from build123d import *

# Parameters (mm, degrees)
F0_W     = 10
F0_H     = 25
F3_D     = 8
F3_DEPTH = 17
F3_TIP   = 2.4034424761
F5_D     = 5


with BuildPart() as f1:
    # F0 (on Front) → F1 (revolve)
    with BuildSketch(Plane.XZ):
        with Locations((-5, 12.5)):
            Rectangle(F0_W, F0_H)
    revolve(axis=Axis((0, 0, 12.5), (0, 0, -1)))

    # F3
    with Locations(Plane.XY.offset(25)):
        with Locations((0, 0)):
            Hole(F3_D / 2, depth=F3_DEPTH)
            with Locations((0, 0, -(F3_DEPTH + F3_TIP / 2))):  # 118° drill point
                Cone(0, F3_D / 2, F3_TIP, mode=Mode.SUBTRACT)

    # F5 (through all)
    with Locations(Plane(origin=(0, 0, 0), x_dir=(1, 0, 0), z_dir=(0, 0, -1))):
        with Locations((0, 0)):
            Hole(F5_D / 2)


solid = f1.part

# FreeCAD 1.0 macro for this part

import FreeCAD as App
import Part
import Sketcher

V = App.Vector
Q = App.Units.Quantity

doc = App.newDocument("Part")
body = doc.addObject("PartDesign::Body", "Body")

# Sketch on XZ plane
sketch1 = body.newObject("Sketcher::SketchObject", "Sketch")
sketch1.AttachmentSupport = (doc.getObject("XZ_Plane"), [""])
sketch1.MapMode = "FlatFace"
sketch1.addGeometry(Part.LineSegment(V(-10, 25, 0), V(-10, 0, 0)), False)
sketch1.addGeometry(Part.LineSegment(V(-10, 0, 0), V(0, 0, 0)), False)
sketch1.addGeometry(Part.LineSegment(V(0, 0, 0), V(0, 25, 0)), False)
sketch1.addGeometry(Part.LineSegment(V(0, 25, 0), V(-10, 25, 0)), False)
sketch1.addConstraint(Sketcher.Constraint("Coincident", 0, 2, 1, 1))
sketch1.addConstraint(Sketcher.Constraint("Coincident", 1, 2, 2, 1))
sketch1.addConstraint(Sketcher.Constraint("Coincident", 2, 2, 3, 1))
sketch1.addConstraint(Sketcher.Constraint("Coincident", 3, 2, 0, 1))
sketch1.addConstraint(Sketcher.Constraint("Vertical", 0))
sketch1.addConstraint(Sketcher.Constraint("Horizontal", 1))
sketch1.addConstraint(Sketcher.Constraint("Vertical", 2))
sketch1.addConstraint(Sketcher.Constraint("Horizontal", 3))
sketch1.addConstraint(Sketcher.Constraint("Coincident", 1, 2, -1, 1))
sketch1.addConstraint(Sketcher.Constraint("DistanceX", 1, 1, 1, 2, Q("10 mm")))
sketch1.addConstraint(Sketcher.Constraint("DistanceY", 0, 2, 0, 1, Q("25 mm")))
revolution = body.newObject("PartDesign::Revolution", "Revolution")
revolution.Profile = sketch1
revolution.ReferenceAxis = (sketch1, ["V_Axis"])
revolution.Angle = 360

# Sketch on XY plane
sketch2 = body.newObject("Sketcher::SketchObject", "Sketch001")
sketch2.AttachmentSupport = (doc.getObject("XY_Plane"), [""])
sketch2.MapMode = "FlatFace"
sketch2.AttachmentOffset = App.Placement(V(0, 0, 25), App.Rotation())
sketch2.addGeometry(Part.Circle(V(0, 0, 0), V(0, 0, 1), 4), False)
sketch2.addConstraint(Sketcher.Constraint("Coincident", 0, 3, -1, 1))
sketch2.addConstraint(Sketcher.Constraint("Diameter", 0, Q("8 mm")))
doc.recompute()
hole = body.newObject("PartDesign::Hole", "Hole")
hole.Profile = sketch2
hole.ThreadType = "None"
hole.Diameter = 8
hole.DepthType = "Dimension"
hole.Depth = 17
hole.DrillPoint = "Angled"
hole.DrillPointAngle = 118

# Sketch on XY plane
sketch3 = body.newObject("Sketcher::SketchObject", "Sketch002")
sketch3.AttachmentSupport = (doc.getObject("XY_Plane"), [""])
sketch3.MapMode = "FlatFace"
sketch3.addGeometry(Part.Circle(V(0, 0, 0), V(0, 0, 1), 2.5), False)
sketch3.addConstraint(Sketcher.Constraint("Coincident", 0, 3, -1, 1))
sketch3.addConstraint(Sketcher.Constraint("Diameter", 0, Q("5 mm")))
doc.recompute()
hole2 = body.newObject("PartDesign::Hole", "Hole001")
hole2.Profile = sketch3
hole2.ThreadType = "None"
hole2.Diameter = 5
hole2.DepthType = "ThroughAll"
hole2.Reversed = True

doc.recompute()
